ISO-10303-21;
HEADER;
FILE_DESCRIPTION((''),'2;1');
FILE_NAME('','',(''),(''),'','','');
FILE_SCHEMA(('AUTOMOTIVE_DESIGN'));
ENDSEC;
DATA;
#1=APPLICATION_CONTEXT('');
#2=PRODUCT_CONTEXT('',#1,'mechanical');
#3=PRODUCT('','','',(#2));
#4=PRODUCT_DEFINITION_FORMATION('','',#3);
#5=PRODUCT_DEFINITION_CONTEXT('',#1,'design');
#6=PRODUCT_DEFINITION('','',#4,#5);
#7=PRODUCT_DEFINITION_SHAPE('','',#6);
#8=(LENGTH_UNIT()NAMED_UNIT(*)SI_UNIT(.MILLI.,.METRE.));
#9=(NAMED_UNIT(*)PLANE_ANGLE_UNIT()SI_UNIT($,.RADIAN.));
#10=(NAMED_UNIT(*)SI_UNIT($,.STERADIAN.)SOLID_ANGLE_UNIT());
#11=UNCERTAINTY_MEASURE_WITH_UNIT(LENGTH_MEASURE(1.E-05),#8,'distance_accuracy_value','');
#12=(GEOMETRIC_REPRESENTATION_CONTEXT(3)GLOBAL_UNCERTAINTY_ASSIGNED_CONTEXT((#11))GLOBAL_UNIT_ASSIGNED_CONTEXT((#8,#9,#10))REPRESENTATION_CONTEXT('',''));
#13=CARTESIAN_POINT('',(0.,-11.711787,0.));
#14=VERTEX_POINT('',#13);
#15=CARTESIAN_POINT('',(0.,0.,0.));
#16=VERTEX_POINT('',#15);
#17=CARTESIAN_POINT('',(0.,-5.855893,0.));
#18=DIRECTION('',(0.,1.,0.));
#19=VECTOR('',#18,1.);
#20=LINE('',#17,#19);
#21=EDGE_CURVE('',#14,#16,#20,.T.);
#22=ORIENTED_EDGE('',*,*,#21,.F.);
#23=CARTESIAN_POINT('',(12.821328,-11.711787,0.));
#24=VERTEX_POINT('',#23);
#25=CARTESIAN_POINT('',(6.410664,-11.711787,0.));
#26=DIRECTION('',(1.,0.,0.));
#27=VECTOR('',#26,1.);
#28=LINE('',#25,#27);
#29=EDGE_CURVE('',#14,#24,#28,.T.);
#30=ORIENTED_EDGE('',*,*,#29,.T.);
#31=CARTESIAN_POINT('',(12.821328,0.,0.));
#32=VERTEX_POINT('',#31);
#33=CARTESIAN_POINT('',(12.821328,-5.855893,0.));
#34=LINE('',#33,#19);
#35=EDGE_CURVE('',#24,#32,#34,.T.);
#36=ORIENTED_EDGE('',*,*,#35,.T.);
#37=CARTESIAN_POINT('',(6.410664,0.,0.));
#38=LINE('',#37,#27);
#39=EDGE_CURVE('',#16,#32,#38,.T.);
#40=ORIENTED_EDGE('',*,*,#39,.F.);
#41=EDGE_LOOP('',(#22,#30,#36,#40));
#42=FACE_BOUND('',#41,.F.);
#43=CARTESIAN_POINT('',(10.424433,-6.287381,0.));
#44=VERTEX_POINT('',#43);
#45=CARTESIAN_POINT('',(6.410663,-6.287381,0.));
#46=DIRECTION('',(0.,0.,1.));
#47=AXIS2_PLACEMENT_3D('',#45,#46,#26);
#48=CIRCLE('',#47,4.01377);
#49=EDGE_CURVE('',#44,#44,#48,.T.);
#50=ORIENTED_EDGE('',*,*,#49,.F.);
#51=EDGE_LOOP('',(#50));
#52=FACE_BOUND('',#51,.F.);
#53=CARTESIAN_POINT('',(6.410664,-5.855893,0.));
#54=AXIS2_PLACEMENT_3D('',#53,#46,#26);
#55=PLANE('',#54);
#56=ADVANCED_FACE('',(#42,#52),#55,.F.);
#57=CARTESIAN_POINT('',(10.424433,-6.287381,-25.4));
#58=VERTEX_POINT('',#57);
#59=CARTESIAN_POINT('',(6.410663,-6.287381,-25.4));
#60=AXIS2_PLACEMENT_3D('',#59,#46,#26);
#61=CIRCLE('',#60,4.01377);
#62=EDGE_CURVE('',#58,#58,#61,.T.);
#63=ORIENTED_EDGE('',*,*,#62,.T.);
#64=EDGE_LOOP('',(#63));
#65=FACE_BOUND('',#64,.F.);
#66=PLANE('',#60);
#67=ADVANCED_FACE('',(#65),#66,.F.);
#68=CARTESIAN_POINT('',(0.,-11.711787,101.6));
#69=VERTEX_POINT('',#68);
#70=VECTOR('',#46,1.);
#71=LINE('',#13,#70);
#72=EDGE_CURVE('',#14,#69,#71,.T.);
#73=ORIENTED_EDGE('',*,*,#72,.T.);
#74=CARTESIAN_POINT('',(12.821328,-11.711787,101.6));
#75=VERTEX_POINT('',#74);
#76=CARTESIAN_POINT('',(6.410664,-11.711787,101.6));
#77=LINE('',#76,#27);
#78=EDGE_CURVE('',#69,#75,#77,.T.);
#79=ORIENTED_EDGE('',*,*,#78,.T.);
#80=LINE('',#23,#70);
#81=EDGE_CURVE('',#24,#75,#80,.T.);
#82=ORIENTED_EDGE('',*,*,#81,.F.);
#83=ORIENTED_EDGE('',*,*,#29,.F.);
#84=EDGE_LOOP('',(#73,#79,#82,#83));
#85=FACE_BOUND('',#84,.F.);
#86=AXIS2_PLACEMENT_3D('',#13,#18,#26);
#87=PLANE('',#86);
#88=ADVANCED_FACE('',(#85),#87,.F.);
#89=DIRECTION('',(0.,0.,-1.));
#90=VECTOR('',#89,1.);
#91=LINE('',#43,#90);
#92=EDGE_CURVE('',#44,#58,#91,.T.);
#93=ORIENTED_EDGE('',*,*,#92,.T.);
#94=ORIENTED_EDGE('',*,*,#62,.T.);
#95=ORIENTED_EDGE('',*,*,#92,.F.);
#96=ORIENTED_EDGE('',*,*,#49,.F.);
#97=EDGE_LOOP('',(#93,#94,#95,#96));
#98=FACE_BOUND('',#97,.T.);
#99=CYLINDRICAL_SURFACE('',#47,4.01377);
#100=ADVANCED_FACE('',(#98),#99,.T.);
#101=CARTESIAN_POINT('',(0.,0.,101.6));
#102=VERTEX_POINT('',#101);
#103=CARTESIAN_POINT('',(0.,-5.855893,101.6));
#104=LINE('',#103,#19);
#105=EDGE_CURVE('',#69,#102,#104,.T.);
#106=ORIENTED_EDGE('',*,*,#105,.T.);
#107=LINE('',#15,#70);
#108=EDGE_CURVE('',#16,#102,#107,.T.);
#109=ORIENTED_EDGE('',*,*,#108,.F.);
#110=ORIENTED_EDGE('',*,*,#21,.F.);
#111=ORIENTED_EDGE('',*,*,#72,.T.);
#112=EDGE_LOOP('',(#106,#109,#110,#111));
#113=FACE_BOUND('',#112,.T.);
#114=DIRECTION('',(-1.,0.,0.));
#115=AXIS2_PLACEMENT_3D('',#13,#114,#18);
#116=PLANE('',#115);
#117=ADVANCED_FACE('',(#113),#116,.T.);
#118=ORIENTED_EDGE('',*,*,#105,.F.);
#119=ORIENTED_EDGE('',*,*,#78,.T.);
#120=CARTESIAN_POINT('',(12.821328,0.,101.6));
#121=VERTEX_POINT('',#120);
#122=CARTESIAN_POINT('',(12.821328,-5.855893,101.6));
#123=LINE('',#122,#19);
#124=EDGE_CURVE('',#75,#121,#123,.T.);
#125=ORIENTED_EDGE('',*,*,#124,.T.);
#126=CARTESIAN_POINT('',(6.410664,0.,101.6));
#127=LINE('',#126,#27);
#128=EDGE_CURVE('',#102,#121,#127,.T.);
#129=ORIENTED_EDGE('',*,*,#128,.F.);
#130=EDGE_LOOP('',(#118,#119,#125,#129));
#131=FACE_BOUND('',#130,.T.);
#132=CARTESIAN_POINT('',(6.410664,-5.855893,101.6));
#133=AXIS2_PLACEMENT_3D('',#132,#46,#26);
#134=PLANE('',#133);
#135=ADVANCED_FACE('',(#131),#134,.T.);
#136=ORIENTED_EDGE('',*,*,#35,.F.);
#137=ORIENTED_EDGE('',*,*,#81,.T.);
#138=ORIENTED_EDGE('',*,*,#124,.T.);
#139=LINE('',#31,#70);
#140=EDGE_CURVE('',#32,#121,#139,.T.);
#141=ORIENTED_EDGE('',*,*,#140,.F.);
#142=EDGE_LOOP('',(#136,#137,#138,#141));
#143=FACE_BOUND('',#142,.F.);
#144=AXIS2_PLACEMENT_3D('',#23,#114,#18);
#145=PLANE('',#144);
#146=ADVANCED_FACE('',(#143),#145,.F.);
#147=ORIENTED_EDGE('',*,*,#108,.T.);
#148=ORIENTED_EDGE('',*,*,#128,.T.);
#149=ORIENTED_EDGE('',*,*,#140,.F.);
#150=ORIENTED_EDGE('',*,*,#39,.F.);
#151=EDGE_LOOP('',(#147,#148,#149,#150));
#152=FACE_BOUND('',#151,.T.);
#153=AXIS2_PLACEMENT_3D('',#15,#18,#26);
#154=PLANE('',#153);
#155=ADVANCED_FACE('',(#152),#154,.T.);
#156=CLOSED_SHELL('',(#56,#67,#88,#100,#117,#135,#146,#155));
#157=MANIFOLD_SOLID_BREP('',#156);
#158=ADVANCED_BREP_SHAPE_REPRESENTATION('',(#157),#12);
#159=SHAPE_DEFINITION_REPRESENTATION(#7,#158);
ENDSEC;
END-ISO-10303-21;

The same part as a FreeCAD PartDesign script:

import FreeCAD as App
import Part
import Sketcher
Q = App.Units.Quantity


def add_polygon(sketch, points):
    """Adds a closed chain of lines whose ends are joined by coincident constraints."""
    first, n = sketch.GeometryCount, len(points)
    for a, b in zip(points, points[1:] + points[:1]):
        sketch.addGeometry(Part.LineSegment(App.Vector(*a, 0), App.Vector(*b, 0)), False)
    for i in range(n):
        sketch.addConstraint(Sketcher.Constraint("Coincident", first + i, 2, first + (i + 1) % n, 1))

doc = App.newDocument("Part")
body = doc.addObject("PartDesign::Body", "Body")

sketch1 = body.newObject("Sketcher::SketchObject", "Sketch")
sketch1.AttachmentSupport = (doc.getObject("XY_Plane"), [""])
sketch1.MapMode = "FlatFace"
add_polygon(sketch1, [(0, 0), (0, -11.711787), (12.821328, -11.711787), (12.821328, 0)])
sketch1.addConstraint(Sketcher.Constraint("Vertical", 0))
sketch1.addConstraint(Sketcher.Constraint("Horizontal", 1))
sketch1.addConstraint(Sketcher.Constraint("Vertical", 2))
sketch1.addConstraint(Sketcher.Constraint("Horizontal", 3))
sketch1.addConstraint(Sketcher.Constraint("Coincident", 3, 2, -1, 1))
sketch1.addConstraint(Sketcher.Constraint("DistanceX", 1, 1, 1, 2, Q("12.821327 mm")))
sketch1.addConstraint(Sketcher.Constraint("DistanceY", 0, 2, 0, 1, Q("11.711787 mm")))
pad1 = body.newObject("PartDesign::Pad", "Pad")
pad1.Profile = sketch1
pad1.Length = Q("4 in")

sketch2 = body.newObject("Sketcher::SketchObject", "Sketch001")
sketch2.AttachmentSupport = (doc.getObject("XY_Plane"), [""])
sketch2.MapMode = "FlatFace"
sketch2.addGeometry(Part.Circle(App.Vector(6.410663, -6.287381, 0), App.Vector(0, 0, 1), 4.01377), False)
sketch2.addConstraint(Sketcher.Constraint("Diameter", 0, Q("8.02754 mm")))
sketch2.addConstraint(Sketcher.Constraint("DistanceY", 0, 3, -1, 1, Q("6.287381 mm")))
sketch2.addConstraint(Sketcher.Constraint("DistanceX", -1, 1, 0, 3, Q("6.410663 mm")))
pad2 = body.newObject("PartDesign::Pad", "Pad001")
pad2.Profile = sketch2
pad2.Length = Q("1 in")
pad2.Reversed = True

doc.recompute()
